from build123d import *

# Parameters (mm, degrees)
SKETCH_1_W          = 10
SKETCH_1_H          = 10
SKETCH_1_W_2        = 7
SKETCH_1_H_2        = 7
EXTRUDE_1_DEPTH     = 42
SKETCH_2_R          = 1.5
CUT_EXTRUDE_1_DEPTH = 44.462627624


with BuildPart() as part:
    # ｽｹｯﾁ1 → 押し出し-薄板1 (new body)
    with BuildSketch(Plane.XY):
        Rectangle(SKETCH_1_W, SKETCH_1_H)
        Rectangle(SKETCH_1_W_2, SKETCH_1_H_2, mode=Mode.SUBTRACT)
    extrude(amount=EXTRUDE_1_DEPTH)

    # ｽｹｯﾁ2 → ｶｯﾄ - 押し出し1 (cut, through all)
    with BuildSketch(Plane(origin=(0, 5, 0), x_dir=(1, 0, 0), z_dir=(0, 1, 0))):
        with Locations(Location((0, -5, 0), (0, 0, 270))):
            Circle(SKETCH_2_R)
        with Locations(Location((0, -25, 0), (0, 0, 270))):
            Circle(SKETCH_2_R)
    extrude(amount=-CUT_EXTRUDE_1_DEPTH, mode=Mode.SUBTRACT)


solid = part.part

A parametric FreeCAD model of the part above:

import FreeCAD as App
import Part
import Sketcher

V = App.Vector
Q = App.Units.Quantity

doc = App.newDocument("Part")
body = doc.addObject("PartDesign::Body", "Body")

# Sketch on XY plane
sketch1 = body.newObject("Sketcher::SketchObject", "Sketch")
sketch1.AttachmentSupport = (doc.getObject("XY_Plane"), [""])
sketch1.MapMode = "FlatFace"
sketch1.addGeometry(Part.LineSegment(V(-5, 5, 0), V(-5, -5, 0)), False)
sketch1.addGeometry(Part.LineSegment(V(-5, -5, 0), V(5, -5, 0)), False)
sketch1.addGeometry(Part.LineSegment(V(5, -5, 0), V(5, 5, 0)), False)
sketch1.addGeometry(Part.LineSegment(V(5, 5, 0), V(-5, 5, 0)), False)
sketch1.addGeometry(Part.LineSegment(V(3.5, -3.5, 0), V(-3.5, -3.5, 0)), False)
sketch1.addGeometry(Part.LineSegment(V(-3.5, -3.5, 0), V(-3.5, 3.5, 0)), False)
sketch1.addGeometry(Part.LineSegment(V(-3.5, 3.5, 0), V(3.5, 3.5, 0)), False)
sketch1.addGeometry(Part.LineSegment(V(3.5, 3.5, 0), V(3.5, -3.5, 0)), False)
sketch1.addConstraint(Sketcher.Constraint("Coincident", 0, 2, 1, 1))
sketch1.addConstraint(Sketcher.Constraint("Coincident", 1, 2, 2, 1))
sketch1.addConstraint(Sketcher.Constraint("Coincident", 2, 2, 3, 1))
sketch1.addConstraint(Sketcher.Constraint("Coincident", 3, 2, 0, 1))
sketch1.addConstraint(Sketcher.Constraint("Coincident", 4, 2, 5, 1))
sketch1.addConstraint(Sketcher.Constraint("Coincident", 5, 2, 6, 1))
sketch1.addConstraint(Sketcher.Constraint("Coincident", 6, 2, 7, 1))
sketch1.addConstraint(Sketcher.Constraint("Coincident", 7, 2, 4, 1))
sketch1.addConstraint(Sketcher.Constraint("Vertical", 0))
sketch1.addConstraint(Sketcher.Constraint("Horizontal", 1))
sketch1.addConstraint(Sketcher.Constraint("Vertical", 2))
sketch1.addConstraint(Sketcher.Constraint("Horizontal", 3))
sketch1.addConstraint(Sketcher.Constraint("Horizontal", 4))
sketch1.addConstraint(Sketcher.Constraint("Vertical", 5))
sketch1.addConstraint(Sketcher.Constraint("Horizontal", 6))
sketch1.addConstraint(Sketcher.Constraint("Vertical", 7))
sketch1.addConstraint(Sketcher.Constraint("Symmetric", 0, 2, 2, 2, -1, 1))
sketch1.addConstraint(Sketcher.Constraint("Symmetric", 4, 2, 6, 2, -1, 1))
sketch1.addConstraint(Sketcher.Constraint("Equal", 3, 0))
sketch1.addConstraint(Sketcher.Constraint("Equal", 6, 5))
sketch1.addConstraint(Sketcher.Constraint("DistanceX", 1, 1, 1, 2, Q("10 mm")))
sketch1.addConstraint(Sketcher.Constraint("DistanceX", 4, 2, 4, 1, Q("7 mm")))
pad1 = body.newObject("PartDesign::Pad", "Pad")
pad1.Profile = sketch1
pad1.Length = 42

# Sketch on XZ plane
sketch2 = body.newObject("Sketcher::SketchObject", "Sketch001")
sketch2.AttachmentSupport = (doc.getObject("XZ_Plane"), [""])
sketch2.MapMode = "FlatFace"
sketch2.AttachmentOffset = App.Placement(V(0, 0, -5), App.Rotation())
sketch2.addGeometry(Part.Circle(V(0, 5, 0), V(0, 0, 1), 1.5), False)
sketch2.addGeometry(Part.Circle(V(0, 25, 0), V(0, 0, 1), 1.5), False)
sketch2.addConstraint(Sketcher.Constraint("Equal", 0, 1))
sketch2.addConstraint(Sketcher.Constraint("PointOnObject", 0, 3, -2))
sketch2.addConstraint(Sketcher.Constraint("PointOnObject", 1, 3, -2))
sketch2.addConstraint(Sketcher.Constraint("Diameter", 0, Q("3 mm")))
sketch2.addConstraint(Sketcher.Constraint("DistanceY", -1, 1, 0, 3, Q("5 mm")))
sketch2.addConstraint(Sketcher.Constraint("DistanceY", -1, 1, 1, 3, Q("25 mm")))
pocket1 = body.newObject("PartDesign::Pocket", "Pocket")
pocket1.Profile = sketch2
pocket1.Type = "ThroughAll"
pocket1.Reversed = True

doc.recompute()
